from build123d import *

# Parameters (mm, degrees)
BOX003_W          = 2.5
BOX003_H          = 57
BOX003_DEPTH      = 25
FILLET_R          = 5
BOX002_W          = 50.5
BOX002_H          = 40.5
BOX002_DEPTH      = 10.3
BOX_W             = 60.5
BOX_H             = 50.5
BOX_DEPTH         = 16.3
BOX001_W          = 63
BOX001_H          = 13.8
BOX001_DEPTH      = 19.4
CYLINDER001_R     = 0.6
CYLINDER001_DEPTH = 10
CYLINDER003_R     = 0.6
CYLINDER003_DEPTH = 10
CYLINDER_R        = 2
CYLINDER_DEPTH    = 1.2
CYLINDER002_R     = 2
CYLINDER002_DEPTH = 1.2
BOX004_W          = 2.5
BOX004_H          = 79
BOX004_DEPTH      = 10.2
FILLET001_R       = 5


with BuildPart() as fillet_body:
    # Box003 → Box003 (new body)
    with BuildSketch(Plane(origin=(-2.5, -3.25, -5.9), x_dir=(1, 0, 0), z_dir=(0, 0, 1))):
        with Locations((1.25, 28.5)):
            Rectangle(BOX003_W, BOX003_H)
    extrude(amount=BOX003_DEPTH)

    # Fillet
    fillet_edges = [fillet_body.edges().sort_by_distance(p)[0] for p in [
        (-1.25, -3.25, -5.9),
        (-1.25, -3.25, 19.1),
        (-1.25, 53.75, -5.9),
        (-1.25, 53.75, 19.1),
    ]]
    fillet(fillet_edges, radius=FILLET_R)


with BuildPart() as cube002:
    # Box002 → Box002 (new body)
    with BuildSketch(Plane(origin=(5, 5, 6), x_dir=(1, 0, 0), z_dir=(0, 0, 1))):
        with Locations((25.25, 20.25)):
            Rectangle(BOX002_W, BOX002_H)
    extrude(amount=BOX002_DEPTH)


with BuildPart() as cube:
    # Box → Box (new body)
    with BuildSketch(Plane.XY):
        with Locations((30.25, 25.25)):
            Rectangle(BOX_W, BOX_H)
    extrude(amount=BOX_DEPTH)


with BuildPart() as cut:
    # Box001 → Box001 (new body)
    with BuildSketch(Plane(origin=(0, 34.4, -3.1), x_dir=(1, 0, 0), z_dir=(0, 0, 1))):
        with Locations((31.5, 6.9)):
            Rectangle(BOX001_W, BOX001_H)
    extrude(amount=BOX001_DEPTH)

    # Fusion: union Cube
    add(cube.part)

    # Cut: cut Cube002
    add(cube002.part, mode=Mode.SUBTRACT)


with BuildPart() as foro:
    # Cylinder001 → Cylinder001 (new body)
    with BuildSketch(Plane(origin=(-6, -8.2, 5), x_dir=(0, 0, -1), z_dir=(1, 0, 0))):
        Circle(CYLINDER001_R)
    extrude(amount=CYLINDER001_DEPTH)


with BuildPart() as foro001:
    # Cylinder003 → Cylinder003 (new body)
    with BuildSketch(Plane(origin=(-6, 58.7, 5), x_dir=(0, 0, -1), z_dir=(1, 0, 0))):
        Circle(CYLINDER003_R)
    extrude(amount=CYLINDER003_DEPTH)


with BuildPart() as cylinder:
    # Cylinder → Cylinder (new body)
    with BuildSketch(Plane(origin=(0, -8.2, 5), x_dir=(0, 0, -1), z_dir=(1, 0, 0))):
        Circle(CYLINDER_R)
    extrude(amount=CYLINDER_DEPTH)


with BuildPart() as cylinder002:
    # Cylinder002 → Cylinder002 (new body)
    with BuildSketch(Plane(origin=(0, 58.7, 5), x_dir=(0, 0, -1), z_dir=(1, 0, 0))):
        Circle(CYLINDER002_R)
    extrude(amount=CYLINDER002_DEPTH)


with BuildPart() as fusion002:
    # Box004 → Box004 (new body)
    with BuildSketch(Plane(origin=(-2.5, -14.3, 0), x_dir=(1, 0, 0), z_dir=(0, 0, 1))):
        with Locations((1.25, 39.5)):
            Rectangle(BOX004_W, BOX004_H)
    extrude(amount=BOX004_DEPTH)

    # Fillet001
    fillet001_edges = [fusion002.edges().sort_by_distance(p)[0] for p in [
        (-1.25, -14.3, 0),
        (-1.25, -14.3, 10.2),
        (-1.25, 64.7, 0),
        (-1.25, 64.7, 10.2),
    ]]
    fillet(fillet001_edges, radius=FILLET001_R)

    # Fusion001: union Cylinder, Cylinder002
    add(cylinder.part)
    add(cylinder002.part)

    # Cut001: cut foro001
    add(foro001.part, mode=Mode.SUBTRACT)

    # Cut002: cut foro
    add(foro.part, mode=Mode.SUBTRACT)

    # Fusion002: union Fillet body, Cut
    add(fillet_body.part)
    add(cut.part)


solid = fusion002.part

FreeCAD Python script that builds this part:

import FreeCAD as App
import Part
import Sketcher
from FreeCAD import Vector
Q = App.Units.Quantity


def edges_at(feature, points):
    """Names of the edges that pass closest to the given points."""
    edges = feature.Shape.Edges
    near = lambda p: min(range(len(edges)), key=lambda i: edges[i].distToShape(Part.Vertex(*p))[0])
    return sorted({f"Edge{near(p) + 1}" for p in points})

doc = App.newDocument("Part")
params = doc.addObject("Spreadsheet::Sheet", "Params")
for row, (alias, value) in enumerate([
    ("sketch1_height", "57 mm"),
    ("sketch1_width", "2.5 mm"),
    ("pad1_length", "25 mm"),
    ("fillet_radius", "5 mm"),
    ("sketch2_width", "50.5 mm"),
    ("sketch2_height", "40.5 mm"),
    ("pad2_length", "10.3 mm"),
    ("sketch3_width", "60.5 mm"),
    ("sketch3_height", "50.5 mm"),
    ("pad3_length", "16.3 mm"),
    ("sketch4_width", "63 mm"),
    ("sketch4_height", "13.8 mm"),
    ("pad4_length", "19.4 mm"),
    ("sketch5_diameter", "1.2 mm"),
    ("pad5_length", "10 mm"),
    ("sketch6_diameter", "1.2 mm"),
    ("pad6_length", "10 mm"),
    ("sketch7_diameter", "4 mm"),
    ("pad7_length", "1.2 mm"),
    ("sketch8_diameter", "4 mm"),
    ("pad8_length", "1.2 mm"),
    ("sketch9_height", "79 mm"),
    ("sketch9_width", "2.5 mm"),
    ("pad9_length", "10.2 mm"),
    ("fillet2_radius", "5 mm"),
], start=1):
    params.set(f"A{row}", alias)
    params.set(f"B{row}", "=" + value)
    params.setAlias(f"B{row}", alias)

body = doc.addObject("PartDesign::Body", "Body")

sketch1 = body.newObject("Sketcher::SketchObject", "Sketch")
sketch1.AttachmentSupport = (doc.getObject("XY_Plane"), [""])
sketch1.MapMode = "FlatFace"
sketch1.AttachmentOffset = App.Placement(Vector(0, 0, -5.9), App.Rotation())
sketch1.addGeometry([
    Part.LineSegment(Vector(-2.5, 53.8, 0), Vector(-2.5, -3.2, 0)),
    Part.LineSegment(Vector(-2.5, -3.2, 0), Vector(0, -3.2, 0)),
    Part.LineSegment(Vector(0, -3.2, 0), Vector(0, 53.8, 0)),
    Part.LineSegment(Vector(0, 53.8, 0), Vector(-2.5, 53.8, 0)),
], False)
sketch1.addConstraint([
    Sketcher.Constraint("Coincident", 0, 2, 1, 1),
    Sketcher.Constraint("Coincident", 1, 2, 2, 1),
    Sketcher.Constraint("Coincident", 2, 2, 3, 1),
    Sketcher.Constraint("Coincident", 3, 2, 0, 1),
    Sketcher.Constraint("Vertical", 0),
    Sketcher.Constraint("Horizontal", 1),
    Sketcher.Constraint("Vertical", 2),
    Sketcher.Constraint("Horizontal", 3),
    Sketcher.Constraint("PointOnObject", 1, 2, -2),
    Sketcher.Constraint("DistanceY", 0, 2, 0, 1, Q("57 mm")),
    Sketcher.Constraint("DistanceX", 1, 1, 1, 2, Q("2.5 mm")),
    Sketcher.Constraint("DistanceY", 0, 2, -1, 1, Q("3.25 mm")),
])
sketch1.setExpression("Constraints[9]", "Params.sketch1_height")
sketch1.setExpression("Constraints[10]", "Params.sketch1_width")
pad1 = body.newObject("PartDesign::Pad", "Pad")
pad1.Profile = sketch1
pad1.setExpression("Length", "Params.pad1_length")
doc.recompute()

fillet = body.newObject("PartDesign::Fillet", "Fillet")
fillet.Base = (pad1, edges_at(pad1, [
    (-1.25, -3.25, -5.9),
    (-1.25, -3.25, 19.1),
    (-1.25, 53.75, -5.9),
    (-1.25, 53.75, 19.1),
]))
fillet.setExpression("Radius", "Params.fillet_radius")
body2 = doc.addObject("PartDesign::Body", "Body001")

sketch2 = body2.newObject("Sketcher::SketchObject", "Sketch001")
sketch2.AttachmentSupport = (doc.getObject("XY_Plane001"), [""])
sketch2.MapMode = "FlatFace"
sketch2.AttachmentOffset = App.Placement(Vector(0, 0, 6), App.Rotation())
sketch2.addGeometry([
    Part.LineSegment(Vector(5, 46, 0), Vector(5, 5, 0)),
    Part.LineSegment(Vector(5, 5, 0), Vector(56, 5, 0)),
    Part.LineSegment(Vector(56, 5, 0), Vector(56, 46, 0)),
    Part.LineSegment(Vector(56, 46, 0), Vector(5, 46, 0)),
], False)
sketch2.addConstraint([
    Sketcher.Constraint("Coincident", 0, 2, 1, 1),
    Sketcher.Constraint("Coincident", 1, 2, 2, 1),
    Sketcher.Constraint("Coincident", 2, 2, 3, 1),
    Sketcher.Constraint("Coincident", 3, 2, 0, 1),
    Sketcher.Constraint("Vertical", 0),
    Sketcher.Constraint("Horizontal", 1),
    Sketcher.Constraint("Vertical", 2),
    Sketcher.Constraint("Horizontal", 3),
    Sketcher.Constraint("DistanceX", 1, 1, 1, 2, Q("50.5 mm")),
    Sketcher.Constraint("DistanceY", 0, 2, 0, 1, Q("40.5 mm")),
    Sketcher.Constraint("DistanceX", -1, 1, 0, 2, Q("5 mm")),
    Sketcher.Constraint("DistanceY", -1, 1, 0, 2, Q("5 mm")),
])
sketch2.setExpression("Constraints[8]", "Params.sketch2_width")
sketch2.setExpression("Constraints[9]", "Params.sketch2_height")
pad2 = body2.newObject("PartDesign::Pad", "Pad001")
pad2.Profile = sketch2
pad2.setExpression("Length", "Params.pad2_length")
body3 = doc.addObject("PartDesign::Body", "Body002")

sketch3 = body3.newObject("Sketcher::SketchObject", "Sketch002")
sketch3.AttachmentSupport = (doc.getObject("XY_Plane002"), [""])
sketch3.MapMode = "FlatFace"
sketch3.addGeometry([
    Part.LineSegment(Vector(0, 50, 0), Vector(0, 0, 0)),
    Part.LineSegment(Vector(0, 0, 0), Vector(60, 0, 0)),
    Part.LineSegment(Vector(60, 0, 0), Vector(60, 50, 0)),
    Part.LineSegment(Vector(60, 50, 0), Vector(0, 50, 0)),
], False)
sketch3.addConstraint([
    Sketcher.Constraint("Coincident", 0, 2, 1, 1),
    Sketcher.Constraint("Coincident", 1, 2, 2, 1),
    Sketcher.Constraint("Coincident", 2, 2, 3, 1),
    Sketcher.Constraint("Coincident", 3, 2, 0, 1),
    Sketcher.Constraint("Vertical", 0),
    Sketcher.Constraint("Horizontal", 1),
    Sketcher.Constraint("Vertical", 2),
    Sketcher.Constraint("Horizontal", 3),
    Sketcher.Constraint("Coincident", 0, 2, -1, 1),
    Sketcher.Constraint("DistanceX", 1, 1, 1, 2, Q("60.5 mm")),
    Sketcher.Constraint("DistanceY", 0, 2, 0, 1, Q("50.5 mm")),
])
sketch3.setExpression("Constraints[9]", "Params.sketch3_width")
sketch3.setExpression("Constraints[10]", "Params.sketch3_height")
pad3 = body3.newObject("PartDesign::Pad", "Pad002")
pad3.Profile = sketch3
pad3.setExpression("Length", "Params.pad3_length")
body4 = doc.addObject("PartDesign::Body", "Body003")

sketch4 = body4.newObject("Sketcher::SketchObject", "Sketch003")
sketch4.AttachmentSupport = (doc.getObject("XY_Plane003"), [""])
sketch4.MapMode = "FlatFace"
sketch4.AttachmentOffset = App.Placement(Vector(0, 0, -3.1), App.Rotation())
sketch4.addGeometry([
    Part.LineSegment(Vector(0, 48, 0), Vector(0, 34, 0)),
    Part.LineSegment(Vector(0, 34, 0), Vector(63, 34, 0)),
    Part.LineSegment(Vector(63, 34, 0), Vector(63, 48, 0)),
    Part.LineSegment(Vector(63, 48, 0), Vector(0, 48, 0)),
], False)
sketch4.addConstraint([
    Sketcher.Constraint("Coincident", 0, 2, 1, 1),
    Sketcher.Constraint("Coincident", 1, 2, 2, 1),
    Sketcher.Constraint("Coincident", 2, 2, 3, 1),
    Sketcher.Constraint("Coincident", 3, 2, 0, 1),
    Sketcher.Constraint("Vertical", 0),
    Sketcher.Constraint("Horizontal", 1),
    Sketcher.Constraint("Vertical", 2),
    Sketcher.Constraint("Horizontal", 3),
    Sketcher.Constraint("PointOnObject", 0, 2, -2),
    Sketcher.Constraint("DistanceX", 1, 1, 1, 2, Q("63 mm")),
    Sketcher.Constraint("DistanceY", 0, 2, 0, 1, Q("13.8 mm")),
    Sketcher.Constraint("DistanceY", -1, 1, 0, 2, Q("34.4 mm")),
])
sketch4.setExpression("Constraints[9]", "Params.sketch4_width")
sketch4.setExpression("Constraints[10]", "Params.sketch4_height")
pad4 = body4.newObject("PartDesign::Pad", "Pad003")
pad4.Profile = sketch4
pad4.setExpression("Length", "Params.pad4_length")
doc.recompute()

boolean = body4.newObject("PartDesign::Boolean", "Boolean")
boolean.Type = "Fuse"
boolean.addObjects([body3])
doc.recompute()

boolean2 = body4.newObject("PartDesign::Boolean", "Boolean001")
boolean2.Type = "Cut"
boolean2.addObjects([body2])
body5 = doc.addObject("PartDesign::Body", "Body004")

sketch5 = body5.newObject("Sketcher::SketchObject", "Sketch004")
sketch5.AttachmentSupport = (doc.getObject("YZ_Plane004"), [""])
sketch5.MapMode = "FlatFace"
sketch5.AttachmentOffset = App.Placement(Vector(0, 0, -6), App.Rotation())
sketch5.addGeometry(Part.Circle(Vector(-8.2, 5, 0), Vector(0, 0, 1), 0.6), False)
sketch5.addConstraint([
    Sketcher.Constraint("Diameter", 0, Q("1.2 mm")),
    Sketcher.Constraint("DistanceY", -1, 1, 0, 3, Q("5 mm")),
    Sketcher.Constraint("DistanceX", 0, 3, -1, 1, Q("8.2 mm")),
])
sketch5.setExpression("Constraints[0]", "Params.sketch5_diameter")
pad5 = body5.newObject("PartDesign::Pad", "Pad004")
pad5.Profile = sketch5
pad5.setExpression("Length", "Params.pad5_length")
body6 = doc.addObject("PartDesign::Body", "Body005")

sketch6 = body6.newObject("Sketcher::SketchObject", "Sketch005")
sketch6.AttachmentSupport = (doc.getObject("YZ_Plane005"), [""])
sketch6.MapMode = "FlatFace"
sketch6.AttachmentOffset = App.Placement(Vector(0, 0, -6), App.Rotation())
sketch6.addGeometry(Part.Circle(Vector(58.7, 5, 0), Vector(0, 0, 1), 0.6), False)
sketch6.addConstraint([
    Sketcher.Constraint("Diameter", 0, Q("1.2 mm")),
    Sketcher.Constraint("DistanceY", -1, 1, 0, 3, Q("5 mm")),
    Sketcher.Constraint("DistanceX", -1, 1, 0, 3, Q("58.7 mm")),
])
sketch6.setExpression("Constraints[0]", "Params.sketch6_diameter")
pad6 = body6.newObject("PartDesign::Pad", "Pad005")
pad6.Profile = sketch6
pad6.setExpression("Length", "Params.pad6_length")
body7 = doc.addObject("PartDesign::Body", "Body006")

sketch7 = body7.newObject("Sketcher::SketchObject", "Sketch006")
sketch7.AttachmentSupport = (doc.getObject("YZ_Plane006"), [""])
sketch7.MapMode = "FlatFace"
sketch7.addGeometry(Part.Circle(Vector(-8.2, 5, 0), Vector(0, 0, 1), 2), False)
sketch7.addConstraint([
    Sketcher.Constraint("Diameter", 0, Q("4 mm")),
    Sketcher.Constraint("DistanceY", -1, 1, 0, 3, Q("5 mm")),
    Sketcher.Constraint("DistanceX", 0, 3, -1, 1, Q("8.2 mm")),
])
sketch7.setExpression("Constraints[0]", "Params.sketch7_diameter")
pad7 = body7.newObject("PartDesign::Pad", "Pad006")
pad7.Profile = sketch7
pad7.setExpression("Length", "Params.pad7_length")
body8 = doc.addObject("PartDesign::Body", "Body007")

sketch8 = body8.newObject("Sketcher::SketchObject", "Sketch007")
sketch8.AttachmentSupport = (doc.getObject("YZ_Plane007"), [""])
sketch8.MapMode = "FlatFace"
sketch8.addGeometry(Part.Circle(Vector(58.7, 5, 0), Vector(0, 0, 1), 2), False)
sketch8.addConstraint([
    Sketcher.Constraint("Diameter", 0, Q("4 mm")),
    Sketcher.Constraint("DistanceY", -1, 1, 0, 3, Q("5 mm")),
    Sketcher.Constraint("DistanceX", -1, 1, 0, 3, Q("58.7 mm")),
])
sketch8.setExpression("Constraints[0]", "Params.sketch8_diameter")
pad8 = body8.newObject("PartDesign::Pad", "Pad007")
pad8.Profile = sketch8
pad8.setExpression("Length", "Params.pad8_length")
body9 = doc.addObject("PartDesign::Body", "Body008")

sketch9 = body9.newObject("Sketcher::SketchObject", "Sketch008")
sketch9.AttachmentSupport = (doc.getObject("XY_Plane008"), [""])
sketch9.MapMode = "FlatFace"
sketch9.addGeometry([
    Part.LineSegment(Vector(-2.5, 64.7, 0), Vector(-2.5, -14.3, 0)),
    Part.LineSegment(Vector(-2.5, -14.3, 0), Vector(0, -14.3, 0)),
    Part.LineSegment(Vector(0, -14.3, 0), Vector(0, 64.7, 0)),
    Part.LineSegment(Vector(0, 64.7, 0), Vector(-2.5, 64.7, 0)),
], False)
sketch9.addConstraint([
    Sketcher.Constraint("Coincident", 0, 2, 1, 1),
    Sketcher.Constraint("Coincident", 1, 2, 2, 1),
    Sketcher.Constraint("Coincident", 2, 2, 3, 1),
    Sketcher.Constraint("Coincident", 3, 2, 0, 1),
    Sketcher.Constraint("Vertical", 0),
    Sketcher.Constraint("Horizontal", 1),
    Sketcher.Constraint("Vertical", 2),
    Sketcher.Constraint("Horizontal", 3),
    Sketcher.Constraint("PointOnObject", 1, 2, -2),
    Sketcher.Constraint("DistanceY", 0, 2, 0, 1, Q("79 mm")),
    Sketcher.Constraint("DistanceX", 1, 1, 1, 2, Q("2.5 mm")),
    Sketcher.Constraint("DistanceY", 0, 2, -1, 1, Q("14.3 mm")),
])
sketch9.setExpression("Constraints[9]", "Params.sketch9_height")
sketch9.setExpression("Constraints[10]", "Params.sketch9_width")
pad9 = body9.newObject("PartDesign::Pad", "Pad008")
pad9.Profile = sketch9
pad9.setExpression("Length", "Params.pad9_length")
doc.recompute()

fillet2 = body9.newObject("PartDesign::Fillet", "Fillet001")
fillet2.Base = (pad9, edges_at(pad9, [
    (-1.25, -14.3, 0),
    (-1.25, -14.3, 10.2),
    (-1.25, 64.7, 0),
    (-1.25, 64.7, 10.2),
]))
fillet2.setExpression("Radius", "Params.fillet2_radius")
doc.recompute()

boolean3 = body9.newObject("PartDesign::Boolean", "Boolean002")
boolean3.Type = "Fuse"
boolean3.addObjects([body7])
doc.recompute()

boolean4 = body9.newObject("PartDesign::Boolean", "Boolean003")
boolean4.Type = "Fuse"
boolean4.addObjects([body8])
doc.recompute()

boolean5 = body9.newObject("PartDesign::Boolean", "Boolean004")
boolean5.Type = "Cut"
boolean5.addObjects([body6])
doc.recompute()

boolean6 = body9.newObject("PartDesign::Boolean", "Boolean005")
boolean6.Type = "Cut"
boolean6.addObjects([body5])
doc.recompute()

boolean7 = body9.newObject("PartDesign::Boolean", "Boolean006")
boolean7.Type = "Fuse"
boolean7.addObjects([body])
doc.recompute()

boolean8 = body9.newObject("PartDesign::Boolean", "Boolean007")
boolean8.Type = "Fuse"
boolean8.addObjects([body4])

doc.recompute()
